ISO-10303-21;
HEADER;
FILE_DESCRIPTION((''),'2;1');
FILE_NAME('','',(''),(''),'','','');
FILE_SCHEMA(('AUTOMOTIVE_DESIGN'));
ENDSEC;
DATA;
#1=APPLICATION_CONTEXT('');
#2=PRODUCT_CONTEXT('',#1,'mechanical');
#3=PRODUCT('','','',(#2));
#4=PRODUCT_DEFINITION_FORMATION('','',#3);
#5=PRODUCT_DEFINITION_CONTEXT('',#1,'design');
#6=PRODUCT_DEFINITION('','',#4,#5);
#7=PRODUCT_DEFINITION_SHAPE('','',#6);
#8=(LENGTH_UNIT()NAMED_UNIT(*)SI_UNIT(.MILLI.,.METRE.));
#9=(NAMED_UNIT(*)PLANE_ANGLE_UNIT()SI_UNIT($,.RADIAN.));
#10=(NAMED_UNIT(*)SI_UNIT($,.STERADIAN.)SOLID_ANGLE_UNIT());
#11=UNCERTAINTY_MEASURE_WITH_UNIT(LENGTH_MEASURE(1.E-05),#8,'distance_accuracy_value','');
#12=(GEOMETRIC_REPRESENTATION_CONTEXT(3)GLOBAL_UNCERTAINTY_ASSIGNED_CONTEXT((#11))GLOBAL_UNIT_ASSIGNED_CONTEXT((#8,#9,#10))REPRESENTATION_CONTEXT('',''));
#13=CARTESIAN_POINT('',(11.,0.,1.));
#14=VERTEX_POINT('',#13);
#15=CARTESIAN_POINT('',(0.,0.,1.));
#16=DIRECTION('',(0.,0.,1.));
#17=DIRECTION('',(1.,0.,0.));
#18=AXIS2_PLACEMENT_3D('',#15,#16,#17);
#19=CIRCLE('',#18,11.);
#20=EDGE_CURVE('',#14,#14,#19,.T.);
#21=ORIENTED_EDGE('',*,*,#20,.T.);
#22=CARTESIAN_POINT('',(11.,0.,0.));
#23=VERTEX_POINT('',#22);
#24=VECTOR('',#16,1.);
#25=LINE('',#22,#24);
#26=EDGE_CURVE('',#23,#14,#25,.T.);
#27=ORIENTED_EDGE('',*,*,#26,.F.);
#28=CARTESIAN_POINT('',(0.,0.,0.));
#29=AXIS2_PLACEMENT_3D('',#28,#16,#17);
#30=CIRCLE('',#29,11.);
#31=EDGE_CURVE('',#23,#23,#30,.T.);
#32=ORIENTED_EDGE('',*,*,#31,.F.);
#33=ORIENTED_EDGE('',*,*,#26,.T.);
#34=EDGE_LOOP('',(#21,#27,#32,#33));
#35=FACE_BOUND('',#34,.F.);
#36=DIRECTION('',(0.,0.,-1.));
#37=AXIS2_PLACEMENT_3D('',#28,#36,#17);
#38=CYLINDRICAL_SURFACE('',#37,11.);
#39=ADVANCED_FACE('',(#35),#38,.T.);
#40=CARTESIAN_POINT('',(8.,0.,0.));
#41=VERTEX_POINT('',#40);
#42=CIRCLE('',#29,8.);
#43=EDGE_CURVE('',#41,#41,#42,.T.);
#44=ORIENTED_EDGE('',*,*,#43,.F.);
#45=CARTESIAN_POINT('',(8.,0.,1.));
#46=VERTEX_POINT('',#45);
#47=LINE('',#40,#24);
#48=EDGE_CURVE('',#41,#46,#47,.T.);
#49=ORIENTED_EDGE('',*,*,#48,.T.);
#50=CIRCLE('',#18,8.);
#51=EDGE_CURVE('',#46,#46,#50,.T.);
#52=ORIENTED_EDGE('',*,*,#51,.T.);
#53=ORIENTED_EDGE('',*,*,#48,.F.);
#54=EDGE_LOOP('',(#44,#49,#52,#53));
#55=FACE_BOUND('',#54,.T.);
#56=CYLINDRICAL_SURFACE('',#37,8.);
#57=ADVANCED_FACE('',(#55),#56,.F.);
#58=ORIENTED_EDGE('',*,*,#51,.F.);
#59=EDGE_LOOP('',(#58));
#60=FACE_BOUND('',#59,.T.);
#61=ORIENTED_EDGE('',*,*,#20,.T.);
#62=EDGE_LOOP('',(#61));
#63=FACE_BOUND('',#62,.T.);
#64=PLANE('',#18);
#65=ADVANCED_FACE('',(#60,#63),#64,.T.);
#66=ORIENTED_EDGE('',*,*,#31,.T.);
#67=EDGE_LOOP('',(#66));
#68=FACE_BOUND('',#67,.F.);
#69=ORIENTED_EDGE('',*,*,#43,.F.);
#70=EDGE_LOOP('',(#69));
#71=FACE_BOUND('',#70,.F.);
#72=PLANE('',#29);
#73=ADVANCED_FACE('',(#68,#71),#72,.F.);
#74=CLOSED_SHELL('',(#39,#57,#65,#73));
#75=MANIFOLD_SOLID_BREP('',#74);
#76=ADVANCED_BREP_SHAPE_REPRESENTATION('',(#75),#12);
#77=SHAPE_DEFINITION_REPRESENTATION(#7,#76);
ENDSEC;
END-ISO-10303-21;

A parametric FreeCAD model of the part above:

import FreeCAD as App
import Part
import Sketcher

V = App.Vector
Q = App.Units.Quantity

doc = App.newDocument("Part")
params = doc.addObject("Spreadsheet::Sheet", "Params")
for row, (alias, value) in enumerate([
    ("sketch1_diameter", "22 mm"),
    ("sketch1_diameter2", "16 mm"),
    ("pad1_length", "1 mm"),
], start=1):
    params.set(f"A{row}", alias)
    params.set(f"B{row}", "=" + value)
    params.setAlias(f"B{row}", alias)

body = doc.addObject("PartDesign::Body", "Body")

sketch1 = body.newObject("Sketcher::SketchObject", "Sketch")
sketch1.AttachmentSupport = (doc.getObject("XY_Plane"), [""])
sketch1.MapMode = "FlatFace"
sketch1.addGeometry(Part.Circle(V(0, 0, 0), V(0, 0, 1), 11), False)
sketch1.addGeometry(Part.Circle(V(0, 0, 0), V(0, 0, 1), 8), False)
sketch1.addConstraint(Sketcher.Constraint("Coincident", 0, 3, -1, 1))
sketch1.addConstraint(Sketcher.Constraint("Coincident", 1, 3, -1, 1))
sketch1.addConstraint(Sketcher.Constraint("Diameter", 0, Q("22 mm")))
sketch1.addConstraint(Sketcher.Constraint("Diameter", 1, Q("16 mm")))
sketch1.setExpression("Constraints[2]", "Params.sketch1_diameter")
sketch1.setExpression("Constraints[3]", "Params.sketch1_diameter2")
pad1 = body.newObject("PartDesign::Pad", "Pad")
pad1.Profile = sketch1
pad1.setExpression("Length", "Params.pad1_length")

doc.recompute()
